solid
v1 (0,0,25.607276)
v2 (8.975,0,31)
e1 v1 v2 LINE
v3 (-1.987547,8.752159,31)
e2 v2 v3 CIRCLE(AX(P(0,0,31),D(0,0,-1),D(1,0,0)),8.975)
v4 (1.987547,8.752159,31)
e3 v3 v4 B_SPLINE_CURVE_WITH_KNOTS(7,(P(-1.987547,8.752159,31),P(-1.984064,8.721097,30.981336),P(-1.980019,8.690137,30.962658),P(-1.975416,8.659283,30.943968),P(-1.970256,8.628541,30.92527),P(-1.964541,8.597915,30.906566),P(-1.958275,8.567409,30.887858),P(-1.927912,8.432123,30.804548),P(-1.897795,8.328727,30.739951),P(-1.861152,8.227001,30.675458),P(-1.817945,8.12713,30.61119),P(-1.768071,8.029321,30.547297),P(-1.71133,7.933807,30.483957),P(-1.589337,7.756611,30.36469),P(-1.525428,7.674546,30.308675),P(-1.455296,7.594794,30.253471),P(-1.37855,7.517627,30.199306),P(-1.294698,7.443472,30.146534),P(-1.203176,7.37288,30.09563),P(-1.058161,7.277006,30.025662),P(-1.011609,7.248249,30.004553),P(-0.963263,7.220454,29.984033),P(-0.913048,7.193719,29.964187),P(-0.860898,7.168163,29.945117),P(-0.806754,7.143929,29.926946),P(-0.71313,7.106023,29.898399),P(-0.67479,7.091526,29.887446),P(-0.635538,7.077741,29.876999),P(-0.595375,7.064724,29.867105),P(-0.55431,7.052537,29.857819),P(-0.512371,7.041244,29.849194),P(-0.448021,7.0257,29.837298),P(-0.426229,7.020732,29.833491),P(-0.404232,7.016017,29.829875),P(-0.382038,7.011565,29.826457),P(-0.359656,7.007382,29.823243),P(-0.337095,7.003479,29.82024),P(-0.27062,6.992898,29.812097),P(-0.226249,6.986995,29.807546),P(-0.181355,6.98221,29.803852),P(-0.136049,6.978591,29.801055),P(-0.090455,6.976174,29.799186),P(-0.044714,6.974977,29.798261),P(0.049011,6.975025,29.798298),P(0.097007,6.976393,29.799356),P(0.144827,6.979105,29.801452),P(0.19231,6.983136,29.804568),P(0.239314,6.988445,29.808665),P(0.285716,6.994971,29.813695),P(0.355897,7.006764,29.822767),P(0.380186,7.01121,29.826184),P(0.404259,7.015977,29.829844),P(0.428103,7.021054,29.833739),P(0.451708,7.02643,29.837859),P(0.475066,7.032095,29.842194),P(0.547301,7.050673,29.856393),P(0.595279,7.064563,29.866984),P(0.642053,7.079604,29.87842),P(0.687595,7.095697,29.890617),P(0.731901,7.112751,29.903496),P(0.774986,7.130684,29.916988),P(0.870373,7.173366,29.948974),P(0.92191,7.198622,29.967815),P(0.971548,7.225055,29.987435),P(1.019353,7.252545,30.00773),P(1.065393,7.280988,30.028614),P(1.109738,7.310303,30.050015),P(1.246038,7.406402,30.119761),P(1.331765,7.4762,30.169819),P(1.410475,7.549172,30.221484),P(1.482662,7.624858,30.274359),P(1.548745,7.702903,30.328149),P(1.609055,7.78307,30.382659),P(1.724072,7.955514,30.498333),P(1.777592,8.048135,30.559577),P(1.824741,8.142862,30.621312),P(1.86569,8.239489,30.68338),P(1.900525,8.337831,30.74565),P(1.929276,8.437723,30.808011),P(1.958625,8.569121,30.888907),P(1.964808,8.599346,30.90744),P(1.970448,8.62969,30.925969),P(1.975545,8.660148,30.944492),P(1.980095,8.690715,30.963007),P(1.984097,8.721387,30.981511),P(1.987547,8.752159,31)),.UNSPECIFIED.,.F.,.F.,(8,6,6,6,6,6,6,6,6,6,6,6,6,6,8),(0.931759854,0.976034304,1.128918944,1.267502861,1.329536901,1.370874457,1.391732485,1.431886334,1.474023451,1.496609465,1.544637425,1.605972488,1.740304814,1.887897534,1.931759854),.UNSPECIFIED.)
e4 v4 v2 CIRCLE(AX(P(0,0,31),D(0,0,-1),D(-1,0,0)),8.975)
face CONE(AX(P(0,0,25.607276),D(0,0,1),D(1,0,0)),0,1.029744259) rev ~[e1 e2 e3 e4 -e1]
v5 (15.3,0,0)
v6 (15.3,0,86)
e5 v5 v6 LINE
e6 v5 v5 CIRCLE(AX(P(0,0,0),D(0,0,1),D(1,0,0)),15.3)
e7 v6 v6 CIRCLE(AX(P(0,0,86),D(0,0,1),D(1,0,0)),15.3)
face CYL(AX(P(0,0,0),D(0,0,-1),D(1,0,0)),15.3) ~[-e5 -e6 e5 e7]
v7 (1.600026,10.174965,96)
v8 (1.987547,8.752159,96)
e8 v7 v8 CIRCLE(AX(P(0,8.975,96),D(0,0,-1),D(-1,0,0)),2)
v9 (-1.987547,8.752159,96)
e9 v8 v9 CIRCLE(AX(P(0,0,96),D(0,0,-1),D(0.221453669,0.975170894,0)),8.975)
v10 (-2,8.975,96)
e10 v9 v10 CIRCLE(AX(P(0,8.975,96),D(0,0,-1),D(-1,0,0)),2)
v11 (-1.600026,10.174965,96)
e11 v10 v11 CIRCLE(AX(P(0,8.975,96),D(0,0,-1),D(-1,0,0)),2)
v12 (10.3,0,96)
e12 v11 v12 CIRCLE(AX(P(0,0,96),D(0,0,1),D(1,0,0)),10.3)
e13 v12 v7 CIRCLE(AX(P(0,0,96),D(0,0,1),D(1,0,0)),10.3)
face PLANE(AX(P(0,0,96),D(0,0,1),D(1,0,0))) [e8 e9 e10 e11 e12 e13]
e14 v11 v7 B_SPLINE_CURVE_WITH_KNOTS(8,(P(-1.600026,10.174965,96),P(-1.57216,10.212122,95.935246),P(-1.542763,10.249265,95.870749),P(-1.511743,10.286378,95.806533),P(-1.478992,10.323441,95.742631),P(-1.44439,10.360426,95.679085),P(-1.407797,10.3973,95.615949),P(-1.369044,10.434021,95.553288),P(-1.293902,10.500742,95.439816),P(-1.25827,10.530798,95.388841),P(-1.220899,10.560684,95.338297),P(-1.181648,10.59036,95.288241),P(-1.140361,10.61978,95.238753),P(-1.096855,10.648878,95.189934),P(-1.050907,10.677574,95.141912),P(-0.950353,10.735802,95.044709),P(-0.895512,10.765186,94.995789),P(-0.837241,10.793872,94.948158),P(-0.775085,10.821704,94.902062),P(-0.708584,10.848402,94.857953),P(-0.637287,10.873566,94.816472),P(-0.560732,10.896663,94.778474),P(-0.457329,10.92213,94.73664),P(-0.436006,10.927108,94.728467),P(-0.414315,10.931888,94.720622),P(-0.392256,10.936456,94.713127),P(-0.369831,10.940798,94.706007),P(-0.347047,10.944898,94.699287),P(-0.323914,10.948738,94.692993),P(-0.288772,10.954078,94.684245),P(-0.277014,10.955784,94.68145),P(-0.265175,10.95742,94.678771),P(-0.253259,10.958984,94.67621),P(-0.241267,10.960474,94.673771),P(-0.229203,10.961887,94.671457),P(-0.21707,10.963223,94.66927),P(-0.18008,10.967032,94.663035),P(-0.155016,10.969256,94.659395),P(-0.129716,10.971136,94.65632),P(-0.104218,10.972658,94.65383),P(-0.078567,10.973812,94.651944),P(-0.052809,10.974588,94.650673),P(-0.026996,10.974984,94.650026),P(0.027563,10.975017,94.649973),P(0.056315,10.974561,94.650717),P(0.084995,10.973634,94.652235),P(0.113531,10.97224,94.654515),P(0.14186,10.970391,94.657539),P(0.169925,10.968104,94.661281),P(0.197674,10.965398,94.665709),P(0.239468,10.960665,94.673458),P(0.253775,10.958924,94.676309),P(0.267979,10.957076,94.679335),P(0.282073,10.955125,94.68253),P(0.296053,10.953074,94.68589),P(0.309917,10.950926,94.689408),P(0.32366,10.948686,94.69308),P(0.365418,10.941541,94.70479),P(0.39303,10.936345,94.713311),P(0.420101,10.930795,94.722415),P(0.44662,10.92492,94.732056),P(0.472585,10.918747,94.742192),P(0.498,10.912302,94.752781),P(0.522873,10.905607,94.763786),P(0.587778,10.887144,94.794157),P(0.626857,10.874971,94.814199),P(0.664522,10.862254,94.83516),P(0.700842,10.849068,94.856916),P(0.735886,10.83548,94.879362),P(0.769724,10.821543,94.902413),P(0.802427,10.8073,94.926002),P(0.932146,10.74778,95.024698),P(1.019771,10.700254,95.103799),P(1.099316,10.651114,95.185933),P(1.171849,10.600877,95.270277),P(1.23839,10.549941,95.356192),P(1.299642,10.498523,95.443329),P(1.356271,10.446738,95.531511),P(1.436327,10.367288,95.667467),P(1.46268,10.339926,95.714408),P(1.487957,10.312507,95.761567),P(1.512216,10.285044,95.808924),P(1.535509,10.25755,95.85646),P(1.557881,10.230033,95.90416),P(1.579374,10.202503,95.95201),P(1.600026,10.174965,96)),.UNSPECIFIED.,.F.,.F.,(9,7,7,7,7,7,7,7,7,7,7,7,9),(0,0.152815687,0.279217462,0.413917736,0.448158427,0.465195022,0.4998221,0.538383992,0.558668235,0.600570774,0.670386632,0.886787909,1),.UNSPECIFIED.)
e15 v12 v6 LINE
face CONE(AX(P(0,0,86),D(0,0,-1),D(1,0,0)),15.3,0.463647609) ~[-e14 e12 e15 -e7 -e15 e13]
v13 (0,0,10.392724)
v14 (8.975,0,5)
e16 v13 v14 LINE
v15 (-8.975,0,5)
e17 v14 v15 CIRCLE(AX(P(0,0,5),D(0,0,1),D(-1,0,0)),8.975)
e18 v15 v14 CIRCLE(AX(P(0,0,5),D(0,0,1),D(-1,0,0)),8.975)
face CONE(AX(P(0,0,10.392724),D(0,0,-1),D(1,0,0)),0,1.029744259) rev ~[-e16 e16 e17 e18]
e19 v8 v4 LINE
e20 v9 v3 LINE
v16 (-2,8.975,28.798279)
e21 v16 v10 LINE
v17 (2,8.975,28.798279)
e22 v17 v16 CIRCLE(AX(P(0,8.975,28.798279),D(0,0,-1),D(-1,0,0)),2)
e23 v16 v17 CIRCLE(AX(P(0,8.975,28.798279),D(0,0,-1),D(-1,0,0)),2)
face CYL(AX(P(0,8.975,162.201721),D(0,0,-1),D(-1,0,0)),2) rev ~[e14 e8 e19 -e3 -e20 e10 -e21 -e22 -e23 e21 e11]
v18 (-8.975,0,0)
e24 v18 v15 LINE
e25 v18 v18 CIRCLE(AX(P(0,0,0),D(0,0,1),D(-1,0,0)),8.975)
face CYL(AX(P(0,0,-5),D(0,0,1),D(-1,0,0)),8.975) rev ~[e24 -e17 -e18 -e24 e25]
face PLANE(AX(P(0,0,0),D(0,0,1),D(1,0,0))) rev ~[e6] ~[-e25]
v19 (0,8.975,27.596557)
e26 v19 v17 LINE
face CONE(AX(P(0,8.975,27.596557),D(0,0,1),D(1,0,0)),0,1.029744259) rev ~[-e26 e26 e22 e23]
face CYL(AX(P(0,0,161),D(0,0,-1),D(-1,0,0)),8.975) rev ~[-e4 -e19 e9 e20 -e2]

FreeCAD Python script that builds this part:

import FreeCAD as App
import Part
import Sketcher

V = App.Vector
Q = App.Units.Quantity


def edges_at(feature, points):
    """Names of the edges that pass closest to the given points."""
    edges = feature.Shape.Edges
    near = lambda p: min(range(len(edges)), key=lambda i: edges[i].distToShape(Part.Vertex(*p))[0])
    return sorted({f"Edge{near(p) + 1}" for p in points})

doc = App.newDocument("Part")
params = doc.addObject("Spreadsheet::Sheet", "Params")
for row, (alias, value) in enumerate([
    ("sketch1_diameter", "30.6 mm"),
    ("pad1_length", "96 mm"),
    ("sketch2_diameter", "17.95 mm"),
    ("hole_diameter", "17.95 mm"),
    ("hole_depth", "65 mm"),
    ("chamfer_size", "5 mm"),
    ("chamfer_size2", "10 mm"),
    ("sketch3_diameter", "4 mm"),
    ("hole2_diameter", "4 mm"),
    ("hole2_depth", "66.201721 mm"),
    ("sketch4_diameter", "4 mm"),
    ("hole3_diameter", "4 mm"),
    ("hole3_depth", "1 mm"),
    ("sketch5_diameter", "17.95 mm"),
    ("hole4_diameter", "17.95 mm"),
    ("hole4_depth", "5 mm"),
], start=1):
    params.set(f"A{row}", alias)
    params.set(f"B{row}", "=" + value)
    params.setAlias(f"B{row}", alias)

body = doc.addObject("PartDesign::Body", "Body")

sketch1 = body.newObject("Sketcher::SketchObject", "Sketch")
sketch1.AttachmentSupport = (doc.getObject("XY_Plane"), [""])
sketch1.MapMode = "FlatFace"
sketch1.addGeometry(Part.Circle(V(0, 0, 0), V(0, 0, 1), 15.3), False)
sketch1.addConstraint([
    Sketcher.Constraint("Coincident", 0, 3, -1, 1),
    Sketcher.Constraint("Diameter", 0, Q("30.6 mm")),
])
sketch1.setExpression("Constraints[1]", "Params.sketch1_diameter")
pad1 = body.newObject("PartDesign::Pad", "Pad")
pad1.Profile = sketch1
pad1.setExpression("Length", "Params.pad1_length")

sketch2 = body.newObject("Sketcher::SketchObject", "Sketch001")
sketch2.AttachmentSupport = (doc.getObject("XY_Plane"), [""])
sketch2.MapMode = "FlatFace"
sketch2.AttachmentOffset = App.Placement(V(0, 0, 96), App.Rotation())
sketch2.addGeometry(Part.Circle(V(0, 0, 0), V(0, 0, 1), 8.975), False)
sketch2.addConstraint([
    Sketcher.Constraint("Coincident", 0, 3, -1, 1),
    Sketcher.Constraint("Diameter", 0, Q("17.95 mm")),
])
sketch2.setExpression("Constraints[1]", "Params.sketch2_diameter")
doc.recompute()
hole = body.newObject("PartDesign::Hole", "Hole")
hole.Profile = sketch2
hole.ThreadType = "None"
hole.setExpression("Diameter", "Params.hole_diameter")
hole.DepthType = "Dimension"
hole.setExpression("Depth", "Params.hole_depth")
hole.DrillPoint = "Angled"
hole.DrillPointAngle = 118
doc.recompute()

chamfer = body.newObject("PartDesign::Chamfer", "Chamfer")
chamfer.Base = (hole, edges_at(hole, [(-15.3, 0, 96)]))
chamfer.ChamferType = "Two distances"
chamfer.setExpression("Size", "Params.chamfer_size")
chamfer.setExpression("Size2", "Params.chamfer_size2")
chamfer.FlipDirection = True

sketch3 = body.newObject("Sketcher::SketchObject", "Sketch002")
sketch3.AttachmentSupport = (doc.getObject("XY_Plane"), [""])
sketch3.MapMode = "FlatFace"
sketch3.AttachmentOffset = App.Placement(V(0, 0, 96), App.Rotation())
sketch3.addGeometry(Part.Circle(V(0, 8.975, 0), V(0, 0, 1), 2), False)
sketch3.addConstraint([
    Sketcher.Constraint("PointOnObject", 0, 3, -2),
    Sketcher.Constraint("Diameter", 0, Q("4 mm")),
    Sketcher.Constraint("DistanceY", -1, 1, 0, 3, Q("8.975 mm")),
])
sketch3.setExpression("Constraints[1]", "Params.sketch3_diameter")
doc.recompute()
hole2 = body.newObject("PartDesign::Hole", "Hole001")
hole2.Profile = sketch3
hole2.ThreadType = "None"
hole2.setExpression("Diameter", "Params.hole2_diameter")
hole2.DepthType = "Dimension"
hole2.setExpression("Depth", "Params.hole2_depth")
hole2.DrillPoint = "Flat"

sketch4 = body.newObject("Sketcher::SketchObject", "Sketch003")
sketch4.AttachmentSupport = (doc.getObject("XY_Plane"), [""])
sketch4.MapMode = "FlatFace"
sketch4.AttachmentOffset = App.Placement(V(0, 0, 29.798279), App.Rotation())
sketch4.addGeometry(Part.Circle(V(0, 8.975, 0), V(0, 0, 1), 2), False)
sketch4.addConstraint([
    Sketcher.Constraint("PointOnObject", 0, 3, -2),
    Sketcher.Constraint("Diameter", 0, Q("4 mm")),
    Sketcher.Constraint("DistanceY", -1, 1, 0, 3, Q("8.975 mm")),
])
sketch4.setExpression("Constraints[1]", "Params.sketch4_diameter")
doc.recompute()
hole3 = body.newObject("PartDesign::Hole", "Hole002")
hole3.Profile = sketch4
hole3.ThreadType = "None"
hole3.setExpression("Diameter", "Params.hole3_diameter")
hole3.DepthType = "Dimension"
hole3.setExpression("Depth", "Params.hole3_depth")
hole3.DrillPoint = "Angled"
hole3.DrillPointAngle = 118

sketch5 = body.newObject("Sketcher::SketchObject", "Sketch004")
sketch5.AttachmentSupport = (doc.getObject("XY_Plane"), [""])
sketch5.MapMode = "FlatFace"
sketch5.addGeometry(Part.Circle(V(0, 0, 0), V(0, 0, 1), 8.975), False)
sketch5.addConstraint([
    Sketcher.Constraint("Coincident", 0, 3, -1, 1),
    Sketcher.Constraint("Diameter", 0, Q("17.95 mm")),
])
sketch5.setExpression("Constraints[1]", "Params.sketch5_diameter")
doc.recompute()
hole4 = body.newObject("PartDesign::Hole", "Hole003")
hole4.Profile = sketch5
hole4.ThreadType = "None"
hole4.setExpression("Diameter", "Params.hole4_diameter")
hole4.DepthType = "Dimension"
hole4.setExpression("Depth", "Params.hole4_depth")
hole4.DrillPoint = "Angled"
hole4.DrillPointAngle = 118
hole4.Reversed = True

doc.recompute()
